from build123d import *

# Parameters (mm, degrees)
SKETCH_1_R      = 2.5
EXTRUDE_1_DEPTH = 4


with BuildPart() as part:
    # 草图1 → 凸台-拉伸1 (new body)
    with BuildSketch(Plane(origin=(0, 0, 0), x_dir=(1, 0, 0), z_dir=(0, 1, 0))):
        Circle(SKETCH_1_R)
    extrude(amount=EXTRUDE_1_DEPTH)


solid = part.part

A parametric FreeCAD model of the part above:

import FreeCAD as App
import Part
import Sketcher

V = App.Vector

doc = App.newDocument("Part")
body = doc.addObject("PartDesign::Body", "Body")

# Sketch on XZ plane
sketch1 = doc.addObject("Sketcher::SketchObject", "Sketch")
body.addObject(sketch1)
sketch1.AttachmentSupport = (doc.XZ_Plane, [""])
sketch1.MapMode = "FlatFace"
sketch1.addGeometry(Part.Circle(V(0, 0, 0), V(0, 0, 1), 2.5), False)
sketch1.addConstraint([
    Sketcher.Constraint("Coincident", 0, 3, -1, 1),
    Sketcher.Constraint("Diameter", 0, 5.0),
])
pad1 = doc.addObject("PartDesign::Pad", "Pad")
body.addObject(pad1)
pad1.Profile = sketch1
pad1.Length = 4
pad1.Reversed = True

doc.recompute()
